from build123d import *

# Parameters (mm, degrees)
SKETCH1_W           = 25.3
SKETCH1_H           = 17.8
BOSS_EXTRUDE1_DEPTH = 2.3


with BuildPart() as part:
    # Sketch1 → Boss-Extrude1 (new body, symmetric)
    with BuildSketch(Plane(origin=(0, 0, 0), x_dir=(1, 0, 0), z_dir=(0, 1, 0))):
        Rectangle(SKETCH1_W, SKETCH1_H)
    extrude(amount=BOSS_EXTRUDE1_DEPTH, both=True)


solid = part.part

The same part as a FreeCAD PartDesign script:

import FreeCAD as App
import Part
import Sketcher


def add_polygon(sketch, points):
    """Adds a closed chain of lines whose ends are joined by coincident constraints."""
    first, n = sketch.GeometryCount, len(points)
    for a, b in zip(points, points[1:] + points[:1]):
        sketch.addGeometry(Part.LineSegment(App.Vector(*a, 0), App.Vector(*b, 0)), False)
    for i in range(n):
        sketch.addConstraint(Sketcher.Constraint("Coincident", first + i, 2, first + (i + 1) % n, 1))

doc = App.newDocument("Part")
body = doc.addObject("PartDesign::Body", "Body")

# Sketch on XZ plane
sketch1 = body.newObject("Sketcher::SketchObject", "Sketch")
sketch1.AttachmentSupport = (doc.getObject("XZ_Plane"), [""])
sketch1.MapMode = "FlatFace"
add_polygon(sketch1, [(-13, -9), (-13, 9), (13, 9), (13, -9)])  # lines 0-3
sketch1.addConstraint(Sketcher.Constraint("Vertical", 0))
sketch1.addConstraint(Sketcher.Constraint("Horizontal", 1))
sketch1.addConstraint(Sketcher.Constraint("Vertical", 2))
sketch1.addConstraint(Sketcher.Constraint("Horizontal", 3))
sketch1.addConstraint(Sketcher.Constraint("Symmetric", 0, 2, 2, 2, -1, 1))
sketch1.addConstraint(Sketcher.Constraint("DistanceX", 1, 1, 1, 2, 25.3))
sketch1.addConstraint(Sketcher.Constraint("DistanceY", 0, 1, 0, 2, 17.8))
pad1 = body.newObject("PartDesign::Pad", "Pad")
pad1.Profile = sketch1
pad1.Length = 4.6
pad1.Midplane = True

doc.recompute()
